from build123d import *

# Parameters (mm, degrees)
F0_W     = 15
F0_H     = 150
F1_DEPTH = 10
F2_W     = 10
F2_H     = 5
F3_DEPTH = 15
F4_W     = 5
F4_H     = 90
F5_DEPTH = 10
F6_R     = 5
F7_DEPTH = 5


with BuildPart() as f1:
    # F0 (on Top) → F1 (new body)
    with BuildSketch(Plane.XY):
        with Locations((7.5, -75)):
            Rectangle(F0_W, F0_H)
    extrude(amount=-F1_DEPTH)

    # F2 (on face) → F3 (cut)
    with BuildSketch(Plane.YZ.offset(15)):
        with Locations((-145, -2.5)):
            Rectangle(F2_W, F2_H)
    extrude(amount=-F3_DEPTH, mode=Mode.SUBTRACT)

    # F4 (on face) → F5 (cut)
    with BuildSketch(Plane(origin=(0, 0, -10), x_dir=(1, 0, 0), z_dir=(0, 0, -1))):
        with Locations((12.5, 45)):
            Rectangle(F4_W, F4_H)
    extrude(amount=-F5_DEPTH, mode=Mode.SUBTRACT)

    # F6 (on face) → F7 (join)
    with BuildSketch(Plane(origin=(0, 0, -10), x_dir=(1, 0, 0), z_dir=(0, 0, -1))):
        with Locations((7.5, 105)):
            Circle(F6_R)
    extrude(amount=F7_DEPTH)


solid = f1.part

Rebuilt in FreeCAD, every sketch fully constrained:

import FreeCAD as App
import Part
import Sketcher

V = App.Vector
Q = App.Units.Quantity

doc = App.newDocument("Part")
body = doc.addObject("PartDesign::Body", "Body")

# Sketch on XY plane
sketch1 = body.newObject("Sketcher::SketchObject", "Sketch")
sketch1.AttachmentSupport = (doc.getObject("XY_Plane"), [""])
sketch1.MapMode = "FlatFace"
sketch1.addGeometry(Part.LineSegment(V(0, 0, 0), V(0, -150, 0)), False)
sketch1.addGeometry(Part.LineSegment(V(0, -150, 0), V(15, -150, 0)), False)
sketch1.addGeometry(Part.LineSegment(V(15, -150, 0), V(15, 0, 0)), False)
sketch1.addGeometry(Part.LineSegment(V(15, 0, 0), V(0, 0, 0)), False)
sketch1.addConstraint(Sketcher.Constraint("Coincident", 0, 2, 1, 1))
sketch1.addConstraint(Sketcher.Constraint("Coincident", 1, 2, 2, 1))
sketch1.addConstraint(Sketcher.Constraint("Coincident", 2, 2, 3, 1))
sketch1.addConstraint(Sketcher.Constraint("Coincident", 3, 2, 0, 1))
sketch1.addConstraint(Sketcher.Constraint("Vertical", 0))
sketch1.addConstraint(Sketcher.Constraint("Horizontal", 1))
sketch1.addConstraint(Sketcher.Constraint("Vertical", 2))
sketch1.addConstraint(Sketcher.Constraint("Horizontal", 3))
sketch1.addConstraint(Sketcher.Constraint("Coincident", 3, 2, -1, 1))
sketch1.addConstraint(Sketcher.Constraint("DistanceX", 1, 1, 1, 2, Q("15 mm")))
sketch1.addConstraint(Sketcher.Constraint("DistanceY", 0, 2, 0, 1, Q("150 mm")))
pad1 = body.newObject("PartDesign::Pad", "Pad")
pad1.Profile = sketch1
pad1.Length = 10
pad1.Reversed = True

# Sketch on YZ plane
sketch2 = body.newObject("Sketcher::SketchObject", "Sketch001")
sketch2.AttachmentSupport = (doc.getObject("YZ_Plane"), [""])
sketch2.MapMode = "FlatFace"
sketch2.AttachmentOffset = App.Placement(V(0, 0, 15), App.Rotation())
sketch2.addGeometry(Part.LineSegment(V(-150, 0, 0), V(-150, -5, 0)), False)
sketch2.addGeometry(Part.LineSegment(V(-150, -5, 0), V(-140, -5, 0)), False)
sketch2.addGeometry(Part.LineSegment(V(-140, -5, 0), V(-140, 0, 0)), False)
sketch2.addGeometry(Part.LineSegment(V(-140, 0, 0), V(-150, 0, 0)), False)
sketch2.addConstraint(Sketcher.Constraint("Coincident", 0, 2, 1, 1))
sketch2.addConstraint(Sketcher.Constraint("Coincident", 1, 2, 2, 1))
sketch2.addConstraint(Sketcher.Constraint("Coincident", 2, 2, 3, 1))
sketch2.addConstraint(Sketcher.Constraint("Coincident", 3, 2, 0, 1))
sketch2.addConstraint(Sketcher.Constraint("Vertical", 0))
sketch2.addConstraint(Sketcher.Constraint("Horizontal", 1))
sketch2.addConstraint(Sketcher.Constraint("Vertical", 2))
sketch2.addConstraint(Sketcher.Constraint("Horizontal", 3))
sketch2.addConstraint(Sketcher.Constraint("PointOnObject", 2, 2, -1))
sketch2.addConstraint(Sketcher.Constraint("DistanceX", 1, 1, 1, 2, Q("10 mm")))
sketch2.addConstraint(Sketcher.Constraint("DistanceY", 0, 2, 0, 1, Q("5 mm")))
sketch2.addConstraint(Sketcher.Constraint("DistanceX", 0, 2, -1, 1, Q("150 mm")))
pocket1 = body.newObject("PartDesign::Pocket", "Pocket")
pocket1.Profile = sketch2
pocket1.Length = 15

# Sketch on XY plane
sketch3 = body.newObject("Sketcher::SketchObject", "Sketch002")
sketch3.AttachmentSupport = (doc.getObject("XY_Plane"), [""])
sketch3.MapMode = "FlatFace"
sketch3.AttachmentOffset = App.Placement(V(0, 0, -10), App.Rotation())
sketch3.addGeometry(Part.LineSegment(V(10, -90, 0), V(10, 0, 0)), False)
sketch3.addGeometry(Part.LineSegment(V(10, 0, 0), V(15, 0, 0)), False)
sketch3.addGeometry(Part.LineSegment(V(15, 0, 0), V(15, -90, 0)), False)
sketch3.addGeometry(Part.LineSegment(V(15, -90, 0), V(10, -90, 0)), False)
sketch3.addConstraint(Sketcher.Constraint("Coincident", 0, 2, 1, 1))
sketch3.addConstraint(Sketcher.Constraint("Coincident", 1, 2, 2, 1))
sketch3.addConstraint(Sketcher.Constraint("Coincident", 2, 2, 3, 1))
sketch3.addConstraint(Sketcher.Constraint("Coincident", 3, 2, 0, 1))
sketch3.addConstraint(Sketcher.Constraint("Vertical", 0))
sketch3.addConstraint(Sketcher.Constraint("Horizontal", 1))
sketch3.addConstraint(Sketcher.Constraint("Vertical", 2))
sketch3.addConstraint(Sketcher.Constraint("Horizontal", 3))
sketch3.addConstraint(Sketcher.Constraint("PointOnObject", 0, 2, -1))
sketch3.addConstraint(Sketcher.Constraint("DistanceX", 1, 1, 1, 2, Q("5 mm")))
sketch3.addConstraint(Sketcher.Constraint("DistanceY", 0, 1, 0, 2, Q("90 mm")))
sketch3.addConstraint(Sketcher.Constraint("DistanceX", -1, 1, 0, 2, Q("10 mm")))
pocket2 = body.newObject("PartDesign::Pocket", "Pocket001")
pocket2.Profile = sketch3
pocket2.Length = 10
pocket2.Reversed = True

# Sketch on XY plane
sketch4 = body.newObject("Sketcher::SketchObject", "Sketch003")
sketch4.AttachmentSupport = (doc.getObject("XY_Plane"), [""])
sketch4.MapMode = "FlatFace"
sketch4.AttachmentOffset = App.Placement(V(0, 0, -10), App.Rotation())
sketch4.addGeometry(Part.Circle(V(8, -105, 0), V(0, 0, 1), 5), False)
sketch4.addConstraint(Sketcher.Constraint("Diameter", 0, Q("10 mm")))
sketch4.addConstraint(Sketcher.Constraint("DistanceY", 0, 3, -1, 1, Q("105 mm")))
sketch4.addConstraint(Sketcher.Constraint("DistanceX", -1, 1, 0, 3, Q("7.5 mm")))
pad2 = body.newObject("PartDesign::Pad", "Pad001")
pad2.Profile = sketch4
pad2.Length = 5
pad2.Reversed = True

doc.recompute()
